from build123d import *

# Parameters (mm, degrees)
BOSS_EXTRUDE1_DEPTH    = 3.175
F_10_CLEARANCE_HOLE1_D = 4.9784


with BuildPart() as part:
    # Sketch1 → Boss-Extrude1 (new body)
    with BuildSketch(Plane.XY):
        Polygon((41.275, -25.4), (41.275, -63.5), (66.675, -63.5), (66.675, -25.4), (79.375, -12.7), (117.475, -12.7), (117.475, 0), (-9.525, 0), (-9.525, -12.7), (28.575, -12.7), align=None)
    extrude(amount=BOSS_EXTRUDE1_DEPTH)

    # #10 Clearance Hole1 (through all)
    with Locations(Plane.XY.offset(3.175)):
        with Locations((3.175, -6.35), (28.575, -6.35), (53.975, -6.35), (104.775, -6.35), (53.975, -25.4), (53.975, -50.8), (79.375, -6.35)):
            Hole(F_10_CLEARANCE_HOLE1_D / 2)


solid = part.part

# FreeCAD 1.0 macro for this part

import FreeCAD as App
import Part
import Sketcher

V = App.Vector
Q = App.Units.Quantity

doc = App.newDocument("Part")
params = doc.addObject("Spreadsheet::Sheet", "Params")
for row, (alias, value) in enumerate([
    ("sketch1_width", "1 in"),
    ("sketch1_width2", "5 in"),
    ("sketch1_width3", "1.5 in"),
    ("sketch1_height", "0.5 in"),
    ("pad1_length", "0.125 in"),
    ("sketch2_diameter", "0.196 in"),
    ("hole_diameter", "0.196 in"),
], start=1):
    params.set(f"A{row}", alias)
    params.set(f"B{row}", "=" + value)
    params.setAlias(f"B{row}", alias)

body = doc.addObject("PartDesign::Body", "Body")

sketch1 = doc.addObject("Sketcher::SketchObject", "Sketch")
body.addObject(sketch1)
sketch1.AttachmentSupport = (doc.XY_Plane, [""])
sketch1.MapMode = "FlatFace"
sketch1.addGeometry([
    Part.LineSegment(V(41, -25, 0), V(41, -64, 0)),
    Part.LineSegment(V(41, -64, 0), V(67, -64, 0)),
    Part.LineSegment(V(67, -64, 0), V(67, -25, 0)),
    Part.LineSegment(V(67, -25, 0), V(79, -13, 0)),
    Part.LineSegment(V(79, -13, 0), V(117, -13, 0)),
    Part.LineSegment(V(117, -13, 0), V(117, 0, 0)),
    Part.LineSegment(V(117, 0, 0), V(-10, 0, 0)),
    Part.LineSegment(V(-10, 0, 0), V(-10, -13, 0)),
    Part.LineSegment(V(-10, -13, 0), V(29, -13, 0)),
    Part.LineSegment(V(29, -13, 0), V(41, -25, 0)),
], False)
sketch1.addConstraint([
    Sketcher.Constraint("Coincident", 0, 2, 1, 1),
    Sketcher.Constraint("Coincident", 1, 2, 2, 1),
    Sketcher.Constraint("Coincident", 2, 2, 3, 1),
    Sketcher.Constraint("Coincident", 3, 2, 4, 1),
    Sketcher.Constraint("Coincident", 4, 2, 5, 1),
    Sketcher.Constraint("Coincident", 5, 2, 6, 1),
    Sketcher.Constraint("Coincident", 6, 2, 7, 1),
    Sketcher.Constraint("Coincident", 7, 2, 8, 1),
    Sketcher.Constraint("Coincident", 8, 2, 9, 1),
    Sketcher.Constraint("Coincident", 9, 2, 0, 1),
    Sketcher.Constraint("Vertical", 0),
    Sketcher.Constraint("Horizontal", 1),
    Sketcher.Constraint("Vertical", 2),
    Sketcher.Constraint("Horizontal", 4),
    Sketcher.Constraint("Vertical", 5),
    Sketcher.Constraint("Horizontal", 6),
    Sketcher.Constraint("Vertical", 7),
    Sketcher.Constraint("Horizontal", 8),
    Sketcher.Constraint("PointOnObject", 5, 2, -1),
    Sketcher.Constraint("Perpendicular", 3, 9),
    Sketcher.Constraint("Horizontal", 4, 2, 7, 2),
    Sketcher.Constraint("Horizontal", 2, 2, 9, 2),
    Sketcher.Constraint("Equal", 4, 8),
    Sketcher.Constraint("Equal", 8, 0),
    Sketcher.Constraint("Equal", 3, 9),
    Sketcher.Constraint("DistanceX", 1, 1, 1, 2, Q("1 in")),
    Sketcher.Constraint("DistanceX", 6, 2, 6, 1, Q("5 in")),
    Sketcher.Constraint("DistanceX", 4, 1, 4, 2, Q("1.5 in")),
    Sketcher.Constraint("DistanceY", 5, 1, 5, 2, Q("0.5 in")),
    Sketcher.Constraint("DistanceX", -1, 1, 0, 2, Q("1.625 in")),
])
sketch1.setExpression("Constraints[25]", "Params.sketch1_width")
sketch1.setExpression("Constraints[26]", "Params.sketch1_width2")
sketch1.setExpression("Constraints[27]", "Params.sketch1_width3")
sketch1.setExpression("Constraints[28]", "Params.sketch1_height")
pad1 = doc.addObject("PartDesign::Pad", "Pad")
body.addObject(pad1)
pad1.Profile = sketch1
pad1.setExpression("Length", "Params.pad1_length")

sketch2 = doc.addObject("Sketcher::SketchObject", "Sketch001")
body.addObject(sketch2)
sketch2.AttachmentSupport = (doc.XY_Plane, [""])
sketch2.MapMode = "FlatFace"
sketch2.AttachmentOffset = App.Placement(V(0, 0, 0.125 * 25.4), App.Rotation())
sketch2.addGeometry([
    Part.Circle(V(3.2, -6.3, 0), V(0, 0, 1), 2.5),
    Part.Circle(V(28.6, -6.3, 0), V(0, 0, 1), 2.5),
    Part.Circle(V(54, -6.3, 0), V(0, 0, 1), 2.5),
    Part.Circle(V(104.8, -6.3, 0), V(0, 0, 1), 2.5),
    Part.Circle(V(54, -25.4, 0), V(0, 0, 1), 2.5),
    Part.Circle(V(54, -50.8, 0), V(0, 0, 1), 2.5),
    Part.Circle(V(79.4, -6.3, 0), V(0, 0, 1), 2.5),
], False)
sketch2.addConstraint([
    Sketcher.Constraint("Equal", 0, 1),
    Sketcher.Constraint("Equal", 1, 2),
    Sketcher.Constraint("Equal", 2, 3),
    Sketcher.Constraint("Equal", 3, 4),
    Sketcher.Constraint("Equal", 4, 5),
    Sketcher.Constraint("Equal", 5, 6),
    Sketcher.Constraint("Horizontal", 0, 3, 1, 3),
    Sketcher.Constraint("Horizontal", 1, 3, 2, 3),
    Sketcher.Constraint("Horizontal", 2, 3, 3, 3),
    Sketcher.Constraint("Horizontal", 3, 3, 6, 3),
    Sketcher.Constraint("Vertical", 2, 3, 4, 3),
    Sketcher.Constraint("Vertical", 4, 3, 5, 3),
    Sketcher.Constraint("Diameter", 0, Q("0.196 in")),
    Sketcher.Constraint("DistanceY", 4, 3, -1, 1, Q("1 in")),
    Sketcher.Constraint("DistanceY", 5, 3, -1, 1, Q("2 in")),
    Sketcher.Constraint("DistanceX", 0, 3, 1, 3, Q("1 in")),
    Sketcher.Constraint("DistanceX", 1, 3, 2, 3, Q("1 in")),
    Sketcher.Constraint("DistanceX", 2, 3, 3, 3, Q("2 in")),
    Sketcher.Constraint("DistanceX", 2, 3, 6, 3, Q("1 in")),
    Sketcher.Constraint("DistanceY", 0, 3, -1, 1, Q("0.25 in")),
    Sketcher.Constraint("DistanceX", -1, 1, 0, 3, Q("0.125 in")),
])
sketch2.setExpression("Constraints[12]", "Params.sketch2_diameter")
doc.recompute()
hole = doc.addObject("PartDesign::Hole", "Hole")
body.addObject(hole)
hole.Profile = sketch2
hole.ThreadType = "None"
hole.setExpression("Diameter", "Params.hole_diameter")
hole.DepthType = "ThroughAll"

doc.recompute()
